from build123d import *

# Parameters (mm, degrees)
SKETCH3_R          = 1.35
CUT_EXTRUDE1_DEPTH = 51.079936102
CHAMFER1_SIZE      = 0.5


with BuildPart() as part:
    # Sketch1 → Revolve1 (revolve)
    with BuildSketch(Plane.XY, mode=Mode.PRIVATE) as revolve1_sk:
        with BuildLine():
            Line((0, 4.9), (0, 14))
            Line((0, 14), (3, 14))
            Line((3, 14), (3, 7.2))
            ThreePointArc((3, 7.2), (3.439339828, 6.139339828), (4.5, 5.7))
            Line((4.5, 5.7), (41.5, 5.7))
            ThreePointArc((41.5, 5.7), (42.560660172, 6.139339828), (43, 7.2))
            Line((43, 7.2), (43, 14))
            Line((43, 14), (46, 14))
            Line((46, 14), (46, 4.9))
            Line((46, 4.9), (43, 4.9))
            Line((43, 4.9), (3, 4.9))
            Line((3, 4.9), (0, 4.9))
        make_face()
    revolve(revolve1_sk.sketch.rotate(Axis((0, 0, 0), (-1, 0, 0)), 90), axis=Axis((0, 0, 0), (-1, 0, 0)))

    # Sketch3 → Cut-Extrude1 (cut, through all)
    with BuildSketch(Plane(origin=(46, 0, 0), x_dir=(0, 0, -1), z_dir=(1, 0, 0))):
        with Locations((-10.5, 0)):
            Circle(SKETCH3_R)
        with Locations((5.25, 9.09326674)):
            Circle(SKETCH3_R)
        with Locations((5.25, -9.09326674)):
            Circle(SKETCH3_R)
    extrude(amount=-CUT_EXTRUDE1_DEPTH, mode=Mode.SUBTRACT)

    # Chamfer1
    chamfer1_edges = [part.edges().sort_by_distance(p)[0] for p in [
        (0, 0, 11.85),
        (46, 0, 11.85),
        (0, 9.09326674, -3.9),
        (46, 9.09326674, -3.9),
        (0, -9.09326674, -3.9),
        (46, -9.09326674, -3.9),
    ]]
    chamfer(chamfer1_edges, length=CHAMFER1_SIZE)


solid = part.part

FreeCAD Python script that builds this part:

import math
import FreeCAD as App
import Part
import Sketcher

V = App.Vector


def edges_at(feature, points):
    """Names of the edges that pass closest to the given points."""
    edges = feature.Shape.Edges
    near = lambda p: min(range(len(edges)), key=lambda i: edges[i].distToShape(Part.Vertex(*p))[0])
    return sorted({f"Edge{near(p) + 1}" for p in points})

doc = App.newDocument("Part")
body = doc.addObject("PartDesign::Body", "Body")

# Sketch on XY plane
sketch1 = body.newObject("Sketcher::SketchObject", "Sketch")
sketch1.AttachmentSupport = (doc.getObject("XY_Plane"), [""])
sketch1.MapMode = "FlatFace"
sketch1.addGeometry(Part.LineSegment(V(0, 14, 0), V(0, 4.9, 0)), False)
sketch1.addGeometry(Part.LineSegment(V(0, 4.9, 0), V(46, 4.9, 0)), False)
sketch1.addGeometry(Part.LineSegment(V(46, 4.9, 0), V(46, 14, 0)), False)
sketch1.addGeometry(Part.LineSegment(V(46, 14, 0), V(43, 14, 0)), False)
sketch1.addGeometry(Part.LineSegment(V(43, 14, 0), V(43, 7.2, 0)), False)
sketch1.addGeometry(Part.ArcOfCircle(Part.Circle(V(41.5, 7.2, 0), V(0, 0, 1), 1.5), math.radians(-90), math.radians(0)), False)
sketch1.addGeometry(Part.LineSegment(V(41.5, 5.7, 0), V(4.5, 5.7, 0)), False)
sketch1.addGeometry(Part.ArcOfCircle(Part.Circle(V(4.5, 7.2, 0), V(0, 0, 1), 1.5), math.radians(180), math.radians(270)), False)
sketch1.addGeometry(Part.LineSegment(V(3, 7.2, 0), V(3, 14, 0)), False)
sketch1.addGeometry(Part.LineSegment(V(3, 14, 0), V(0, 14, 0)), False)
sketch1.addConstraint(Sketcher.Constraint("Coincident", 0, 2, 1, 1))
sketch1.addConstraint(Sketcher.Constraint("Coincident", 1, 2, 2, 1))
sketch1.addConstraint(Sketcher.Constraint("Coincident", 2, 2, 3, 1))
sketch1.addConstraint(Sketcher.Constraint("Coincident", 3, 2, 4, 1))
sketch1.addConstraint(Sketcher.Constraint("Tangent", 4, 2, 5, 2))
sketch1.addConstraint(Sketcher.Constraint("Tangent", 5, 1, 6, 1))
sketch1.addConstraint(Sketcher.Constraint("Tangent", 6, 2, 7, 2))
sketch1.addConstraint(Sketcher.Constraint("Tangent", 7, 1, 8, 1))
sketch1.addConstraint(Sketcher.Constraint("Coincident", 8, 2, 9, 1))
sketch1.addConstraint(Sketcher.Constraint("Coincident", 9, 2, 0, 1))
sketch1.addConstraint(Sketcher.Constraint("Vertical", 0))
sketch1.addConstraint(Sketcher.Constraint("Horizontal", 1))
sketch1.addConstraint(Sketcher.Constraint("Vertical", 2))
sketch1.addConstraint(Sketcher.Constraint("Horizontal", 3))
sketch1.addConstraint(Sketcher.Constraint("Vertical", 4))
sketch1.addConstraint(Sketcher.Constraint("Horizontal", 6))
sketch1.addConstraint(Sketcher.Constraint("Vertical", 8))
sketch1.addConstraint(Sketcher.Constraint("Horizontal", 9))
sketch1.addConstraint(Sketcher.Constraint("Equal", 5, 7))
sketch1.addConstraint(Sketcher.Constraint("PointOnObject", 0, 2, -2))
sketch1.addConstraint(Sketcher.Constraint("Horizontal", 3, 2, 8, 2))
sketch1.addConstraint(Sketcher.Constraint("Equal", 3, 9))
sketch1.addConstraint(Sketcher.Constraint("Radius", 5, 1.5))
sketch1.addConstraint(Sketcher.Constraint("DistanceX", 1, 1, 1, 2, 46.0))
sketch1.addConstraint(Sketcher.Constraint("DistanceX", 3, 2, 3, 1, 3.0))
sketch1.addConstraint(Sketcher.Constraint("DistanceY", 0, 2, 0, 1, 9.1))
sketch1.addConstraint(Sketcher.Constraint("DistanceY", 4, 2, 4, 1, 6.8))
sketch1.addConstraint(Sketcher.Constraint("DistanceY", -1, 1, 2, 2, 14.0))
revolution = body.newObject("PartDesign::Revolution", "Revolution")
revolution.Profile = sketch1
revolution.ReferenceAxis = (sketch1, ["H_Axis"])
revolution.Angle = 360

# Sketch on YZ plane
sketch2 = body.newObject("Sketcher::SketchObject", "Sketch001")
sketch2.AttachmentSupport = (doc.getObject("YZ_Plane"), [""])
sketch2.MapMode = "FlatFace"
sketch2.AttachmentOffset = App.Placement(V(0, 0, 46), App.Rotation())
sketch2.addGeometry(Part.Circle(V(0, 10.5, 0), V(0, 0, 1), 1.4), False)
sketch2.addGeometry(Part.Circle(V(9.1, -5.2, 0), V(0, 0, 1), 1.4), False)
sketch2.addGeometry(Part.Circle(V(-9.1, -5.2, 0), V(0, 0, 1), 1.4), False)
sketch2.addConstraint(Sketcher.Constraint("Equal", 0, 1))
sketch2.addConstraint(Sketcher.Constraint("Equal", 1, 2))
sketch2.addConstraint(Sketcher.Constraint("Symmetric", 1, 3, 2, 3, -2))
sketch2.addConstraint(Sketcher.Constraint("PointOnObject", 0, 3, -2))
sketch2.addConstraint(Sketcher.Constraint("Diameter", 0, 2.7))
sketch2.addConstraint(Sketcher.Constraint("DistanceY", -1, 1, 0, 3, 10.5))
sketch2.addConstraint(Sketcher.Constraint("DistanceY", 1, 3, -1, 1, 5.25))
sketch2.addConstraint(Sketcher.Constraint("DistanceX", -1, 1, 1, 3, 9.093267))
pocket1 = body.newObject("PartDesign::Pocket", "Pocket")
pocket1.Profile = sketch2
pocket1.Type = "ThroughAll"
doc.recompute()

chamfer = body.newObject("PartDesign::Chamfer", "Chamfer")
chamfer.Base = (pocket1, edges_at(pocket1, [
    (0, 0, 11.85),
    (46, 0, 11.85),
    (0, 9.093, -3.9),
    (46, 9.093, -3.9),
    (0, -9.093, -3.9),
    (46, -9.093, -3.9),
]))
chamfer.Size = 0.5

doc.recompute()
